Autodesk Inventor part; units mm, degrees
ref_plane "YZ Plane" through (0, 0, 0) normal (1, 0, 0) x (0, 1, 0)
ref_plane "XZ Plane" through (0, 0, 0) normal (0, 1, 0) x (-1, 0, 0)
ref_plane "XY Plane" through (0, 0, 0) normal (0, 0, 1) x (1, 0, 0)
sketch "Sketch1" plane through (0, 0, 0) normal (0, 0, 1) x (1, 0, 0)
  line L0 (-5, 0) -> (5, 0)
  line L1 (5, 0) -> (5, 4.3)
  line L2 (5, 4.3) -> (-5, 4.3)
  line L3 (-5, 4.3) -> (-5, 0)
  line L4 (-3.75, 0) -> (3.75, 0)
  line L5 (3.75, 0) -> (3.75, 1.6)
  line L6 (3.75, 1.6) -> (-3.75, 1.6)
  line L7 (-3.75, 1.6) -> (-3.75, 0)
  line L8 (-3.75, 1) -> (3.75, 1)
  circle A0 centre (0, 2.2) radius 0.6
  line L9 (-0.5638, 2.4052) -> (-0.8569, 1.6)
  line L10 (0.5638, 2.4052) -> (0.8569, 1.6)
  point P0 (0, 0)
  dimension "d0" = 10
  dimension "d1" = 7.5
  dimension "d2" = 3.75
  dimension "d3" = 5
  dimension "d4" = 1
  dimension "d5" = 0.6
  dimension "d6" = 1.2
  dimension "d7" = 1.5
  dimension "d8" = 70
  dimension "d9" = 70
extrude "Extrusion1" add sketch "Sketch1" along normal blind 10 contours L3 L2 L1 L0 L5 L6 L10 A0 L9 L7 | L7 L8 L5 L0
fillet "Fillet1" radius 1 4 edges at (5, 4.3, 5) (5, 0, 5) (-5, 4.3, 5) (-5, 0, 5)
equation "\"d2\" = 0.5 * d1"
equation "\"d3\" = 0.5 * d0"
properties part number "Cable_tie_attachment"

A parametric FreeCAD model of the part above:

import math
import FreeCAD as App
import Part
import Sketcher
from FreeCAD import Vector
Q = App.Units.Quantity


def edges_at(feature, points):
    """Names of the edges that pass closest to the given points."""
    edges = feature.Shape.Edges
    near = lambda p: min(range(len(edges)), key=lambda i: edges[i].distToShape(Part.Vertex(*p))[0])
    return sorted({f"Edge{near(p) + 1}" for p in points})


def add_polygon(sketch, points):
    """Adds a closed chain of lines whose ends are joined by coincident constraints."""
    first, n = sketch.GeometryCount, len(points)
    for a, b in zip(points, points[1:] + points[:1]):
        sketch.addGeometry(Part.LineSegment(App.Vector(*a, 0), App.Vector(*b, 0)), False)
    for i in range(n):
        sketch.addConstraint(Sketcher.Constraint("Coincident", first + i, 2, first + (i + 1) % n, 1))

doc = App.newDocument("Part")
body = doc.addObject("PartDesign::Body", "Body")

sketch1 = body.newObject("Sketcher::SketchObject", "Sketch")
sketch1.AttachmentSupport = (doc.getObject("XY_Plane"), [""])
sketch1.MapMode = "FlatFace"
add_polygon(sketch1, [(-5, 4.3), (-5, 0), (5, 0), (5, 4.3)])
sketch1.addGeometry(Part.LineSegment(Vector(3.75, 1.6, 0), Vector(3.75, 1, 0)), False)
sketch1.addGeometry(Part.LineSegment(Vector(3.75, 1, 0), Vector(-3.75, 1, 0)), False)
sketch1.addGeometry(Part.LineSegment(Vector(-3.75, 1, 0), Vector(-3.75, 1.6, 0)), False)
sketch1.addGeometry(Part.LineSegment(Vector(-3.75, 1.6, 0), Vector(-0.8569, 1.6, 0)), False)
sketch1.addGeometry(Part.LineSegment(Vector(-0.8569, 1.6, 0), Vector(-0.5638, 2.4052, 0)), False)
sketch1.addGeometry(Part.ArcOfCircle(Part.Circle(Vector(0, 2.2, 0), Vector(0, 0, 1), 0.6), math.radians(19.999424), math.radians(160.000576)), False)
sketch1.addGeometry(Part.LineSegment(Vector(0.5638, 2.4052, 0), Vector(0.8569, 1.6, 0)), False)
sketch1.addGeometry(Part.LineSegment(Vector(0.8569, 1.6, 0), Vector(3.75, 1.6, 0)), False)
sketch1.addConstraint([
    Sketcher.Constraint("Coincident", 4, 2, 5, 1),
    Sketcher.Constraint("Coincident", 5, 2, 6, 1),
    Sketcher.Constraint("Coincident", 6, 2, 7, 1),
    Sketcher.Constraint("Coincident", 7, 2, 8, 1),
    Sketcher.Constraint("Tangent", 8, 2, 9, 2),
    Sketcher.Constraint("Tangent", 9, 1, 10, 1),
    Sketcher.Constraint("Coincident", 10, 2, 11, 1),
    Sketcher.Constraint("Coincident", 11, 2, 4, 1),
    Sketcher.Constraint("Vertical", 0),
    Sketcher.Constraint("Horizontal", 1),
    Sketcher.Constraint("Vertical", 2),
    Sketcher.Constraint("Horizontal", 3),
    Sketcher.Constraint("Vertical", 4),
    Sketcher.Constraint("Horizontal", 5),
    Sketcher.Constraint("Vertical", 6),
    Sketcher.Constraint("Horizontal", 7),
    Sketcher.Constraint("Horizontal", 11),
    Sketcher.Constraint("Symmetric", 0, 2, 1, 2, -1, 1),
    Sketcher.Constraint("Symmetric", 8, 2, 9, 1, -2),
    Sketcher.Constraint("Symmetric", 6, 2, 11, 2, -2),
    Sketcher.Constraint("Radius", 9, Q("0.6 mm")),
    Sketcher.Constraint("DistanceX", 1, 1, 1, 2, Q("10 mm")),
    Sketcher.Constraint("DistanceX", 5, 2, 5, 1, Q("7.5 mm")),
    Sketcher.Constraint("DistanceY", 4, 2, 4, 1, Q("0.6 mm")),
    Sketcher.Constraint("DistanceY", -1, 1, 4, 2, Q("1 mm")),
    Sketcher.Constraint("DistanceY", 4, 2, 9, 3, Q("1.2 mm")),
    Sketcher.Constraint("DistanceY", 0, 2, 0, 1, Q("4.3 mm")),
    Sketcher.Constraint("DistanceX", 7, 1, 7, 2, Q("2.893 mm")),
])
pad1 = body.newObject("PartDesign::Pad", "Pad")
pad1.Profile = sketch1
pad1.Length = 10
doc.recompute()

fillet = body.newObject("PartDesign::Fillet", "Fillet")
fillet.Base = (pad1, edges_at(pad1, [
    (5, 4.3, 5),
    (5, 0, 5),
    (-5, 4.3, 5),
    (-5, 0, 5),
]))
fillet.Radius = 1

doc.recompute()
